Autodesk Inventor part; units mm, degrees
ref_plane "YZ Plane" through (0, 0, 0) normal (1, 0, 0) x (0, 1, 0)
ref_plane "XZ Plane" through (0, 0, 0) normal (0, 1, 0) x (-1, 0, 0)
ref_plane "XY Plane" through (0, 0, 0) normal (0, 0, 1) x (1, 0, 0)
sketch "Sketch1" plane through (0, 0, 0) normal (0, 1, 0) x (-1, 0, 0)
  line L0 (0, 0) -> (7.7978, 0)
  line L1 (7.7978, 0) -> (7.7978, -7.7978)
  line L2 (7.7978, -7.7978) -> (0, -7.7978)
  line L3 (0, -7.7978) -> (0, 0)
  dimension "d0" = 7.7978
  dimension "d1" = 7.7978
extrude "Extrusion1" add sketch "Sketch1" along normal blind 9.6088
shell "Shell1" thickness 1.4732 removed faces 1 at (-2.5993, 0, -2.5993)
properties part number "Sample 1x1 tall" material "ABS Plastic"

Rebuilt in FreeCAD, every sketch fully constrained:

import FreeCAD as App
import Part
import Sketcher
Q = App.Units.Quantity


def faces_at(feature, points):
    """Names of the faces that lie closest to the given points."""
    faces = feature.Shape.Faces
    near = lambda p: min(range(len(faces)), key=lambda i: faces[i].distToShape(Part.Vertex(*p))[0])
    return sorted({f"Face{near(p) + 1}" for p in points})

doc = App.newDocument("Part")
params = doc.addObject("Spreadsheet::Sheet", "Params")
for row, (alias, value) in enumerate([
    ("sketch1_width", "0.307 in"),
    ("pad1_length", "0.3782992 in"),
    ("thickness_wall", "0.058 in"),
], start=1):
    params.set(f"A{row}", alias)
    params.set(f"B{row}", "=" + value)
    params.setAlias(f"B{row}", alias)

body = doc.addObject("PartDesign::Body", "Body")

# Sketch on XZ plane
sketch1 = doc.addObject("Sketcher::SketchObject", "Sketch")
body.addObject(sketch1)
sketch1.AttachmentSupport = (doc.XZ_Plane, [""])
sketch1.MapMode = "FlatFace"
sketch1.addGeometry(Part.LineSegment(App.Vector(-8, 0, 0), App.Vector(0, 0, 0)), False)
sketch1.addGeometry(Part.LineSegment(App.Vector(0, 0, 0), App.Vector(0, -8, 0)), False)
sketch1.addGeometry(Part.LineSegment(App.Vector(0, -8, 0), App.Vector(-8, -8, 0)), False)
sketch1.addGeometry(Part.LineSegment(App.Vector(-8, -8, 0), App.Vector(-8, 0, 0)), False)
sketch1.addConstraint(Sketcher.Constraint("Coincident", 0, 2, 1, 1))
sketch1.addConstraint(Sketcher.Constraint("Coincident", 1, 2, 2, 1))
sketch1.addConstraint(Sketcher.Constraint("Coincident", 2, 2, 3, 1))
sketch1.addConstraint(Sketcher.Constraint("Coincident", 3, 2, 0, 1))
sketch1.addConstraint(Sketcher.Constraint("Horizontal", 0))
sketch1.addConstraint(Sketcher.Constraint("Vertical", 1))
sketch1.addConstraint(Sketcher.Constraint("Horizontal", 2))
sketch1.addConstraint(Sketcher.Constraint("Vertical", 3))
sketch1.addConstraint(Sketcher.Constraint("Coincident", 0, 2, -1, 1))
sketch1.addConstraint(Sketcher.Constraint("Equal", 2, 1))
sketch1.addConstraint(Sketcher.Constraint("DistanceX", 0, 1, 0, 2, Q("0.307 in")))
sketch1.setExpression("Constraints[10]", "Params.sketch1_width")
pad1 = doc.addObject("PartDesign::Pad", "Pad")
body.addObject(pad1)
pad1.Profile = sketch1
pad1.setExpression("Length", "Params.pad1_length")
pad1.Reversed = True
doc.recompute()

thickness = doc.addObject("PartDesign::Thickness", "Thickness")
body.addObject(thickness)
thickness.Base = (pad1, faces_at(pad1, [(-2.599, 0, -2.599)]))
thickness.setExpression("Value", "Params.thickness_wall")
thickness.Reversed = True
thickness.Join = "Intersection"

doc.recompute()
